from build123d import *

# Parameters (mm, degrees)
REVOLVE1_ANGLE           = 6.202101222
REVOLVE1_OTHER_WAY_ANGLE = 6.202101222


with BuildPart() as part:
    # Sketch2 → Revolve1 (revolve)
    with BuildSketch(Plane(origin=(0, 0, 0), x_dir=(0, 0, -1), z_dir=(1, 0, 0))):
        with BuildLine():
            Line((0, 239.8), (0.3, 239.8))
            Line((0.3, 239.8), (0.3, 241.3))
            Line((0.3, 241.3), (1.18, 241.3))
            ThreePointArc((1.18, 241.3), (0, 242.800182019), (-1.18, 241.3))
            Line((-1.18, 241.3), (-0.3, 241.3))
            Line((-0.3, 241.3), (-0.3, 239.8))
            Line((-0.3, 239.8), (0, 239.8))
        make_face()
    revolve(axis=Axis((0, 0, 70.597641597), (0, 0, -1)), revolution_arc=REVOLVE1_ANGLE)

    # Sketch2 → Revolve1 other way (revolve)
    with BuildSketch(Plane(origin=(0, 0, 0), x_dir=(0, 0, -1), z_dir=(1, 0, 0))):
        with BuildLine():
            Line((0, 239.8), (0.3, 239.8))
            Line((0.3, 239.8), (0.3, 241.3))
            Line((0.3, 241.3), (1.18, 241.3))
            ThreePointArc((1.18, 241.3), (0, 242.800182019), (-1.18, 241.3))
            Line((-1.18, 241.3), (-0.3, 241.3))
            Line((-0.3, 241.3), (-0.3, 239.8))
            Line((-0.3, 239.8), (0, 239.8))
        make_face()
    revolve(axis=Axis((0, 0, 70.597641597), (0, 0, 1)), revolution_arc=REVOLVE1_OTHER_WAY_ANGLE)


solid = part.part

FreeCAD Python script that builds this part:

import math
import FreeCAD as App
import Part
import Sketcher
Q = App.Units.Quantity

doc = App.newDocument("Part")
body = doc.addObject("PartDesign::Body", "Body")

sketch1 = body.newObject("Sketcher::SketchObject", "Sketch")
sketch1.AttachmentSupport = (doc.getObject("YZ_Plane"), [""])
sketch1.MapMode = "FlatFace"
sketch1.addGeometry(Part.LineSegment(App.Vector(239.8, -0.3, 0), App.Vector(241.3, -0.3, 0)), False)
sketch1.addGeometry(Part.LineSegment(App.Vector(241.3, -0.3, 0), App.Vector(241.3, -1.2, 0)), False)
sketch1.addGeometry(Part.ArcOfCircle(Part.Circle(App.Vector(241.6, 0, 0), App.Vector(0, 0, 1), 1.2), math.radians(-104), math.radians(104)), False)
sketch1.addGeometry(Part.LineSegment(App.Vector(241.3, 1.2, 0), App.Vector(241.3, 0.3, 0)), False)
sketch1.addGeometry(Part.LineSegment(App.Vector(241.3, 0.3, 0), App.Vector(239.8, 0.3, 0)), False)
sketch1.addGeometry(Part.LineSegment(App.Vector(239.8, 0.3, 0), App.Vector(239.8, -0.3, 0)), False)
sketch1.addConstraint(Sketcher.Constraint("Coincident", 0, 2, 1, 1))
sketch1.addConstraint(Sketcher.Constraint("Coincident", 1, 2, 2, 1))
sketch1.addConstraint(Sketcher.Constraint("Coincident", 2, 2, 3, 1))
sketch1.addConstraint(Sketcher.Constraint("Coincident", 3, 2, 4, 1))
sketch1.addConstraint(Sketcher.Constraint("Coincident", 4, 2, 5, 1))
sketch1.addConstraint(Sketcher.Constraint("Coincident", 5, 2, 0, 1))
sketch1.addConstraint(Sketcher.Constraint("Horizontal", 0))
sketch1.addConstraint(Sketcher.Constraint("Vertical", 1))
sketch1.addConstraint(Sketcher.Constraint("Vertical", 3))
sketch1.addConstraint(Sketcher.Constraint("Horizontal", 4))
sketch1.addConstraint(Sketcher.Constraint("Vertical", 5))
sketch1.addConstraint(Sketcher.Constraint("Symmetric", 1, 2, 2, 2, -1))
sketch1.addConstraint(Sketcher.Constraint("Equal", 1, 3))
sketch1.addConstraint(Sketcher.Constraint("DistanceX", 0, 1, 0, 2, Q("1.5 mm")))
sketch1.addConstraint(Sketcher.Constraint("DistanceY", 5, 2, 5, 1, Q("0.6 mm")))
sketch1.addConstraint(Sketcher.Constraint("DistanceY", 1, 2, 1, 1, Q("0.88 mm")))
sketch1.addConstraint(Sketcher.Constraint("DistanceX", -1, 1, 0, 2, Q("241.3 mm")))
sketch1.addConstraint(Sketcher.Constraint("Radius", 2, Q("1.214168 mm")))
revolution = body.newObject("PartDesign::Revolution", "Revolution")
revolution.Profile = sketch1
revolution.ReferenceAxis = (sketch1, ["V_Axis"])
revolution.Angle = 6.202101
revolution.Reversed = True

sketch2 = body.newObject("Sketcher::SketchObject", "Sketch001")
sketch2.AttachmentSupport = (doc.getObject("YZ_Plane"), [""])
sketch2.MapMode = "FlatFace"
sketch2.addGeometry(Part.LineSegment(App.Vector(239.8, -0.3, 0), App.Vector(241.3, -0.3, 0)), False)
sketch2.addGeometry(Part.LineSegment(App.Vector(241.3, -0.3, 0), App.Vector(241.3, -1.2, 0)), False)
sketch2.addGeometry(Part.ArcOfCircle(Part.Circle(App.Vector(241.6, 0, 0), App.Vector(0, 0, 1), 1.2), math.radians(-104), math.radians(104)), False)
sketch2.addGeometry(Part.LineSegment(App.Vector(241.3, 1.2, 0), App.Vector(241.3, 0.3, 0)), False)
sketch2.addGeometry(Part.LineSegment(App.Vector(241.3, 0.3, 0), App.Vector(239.8, 0.3, 0)), False)
sketch2.addGeometry(Part.LineSegment(App.Vector(239.8, 0.3, 0), App.Vector(239.8, -0.3, 0)), False)
sketch2.addConstraint(Sketcher.Constraint("Coincident", 0, 2, 1, 1))
sketch2.addConstraint(Sketcher.Constraint("Coincident", 1, 2, 2, 1))
sketch2.addConstraint(Sketcher.Constraint("Coincident", 2, 2, 3, 1))
sketch2.addConstraint(Sketcher.Constraint("Coincident", 3, 2, 4, 1))
sketch2.addConstraint(Sketcher.Constraint("Coincident", 4, 2, 5, 1))
sketch2.addConstraint(Sketcher.Constraint("Coincident", 5, 2, 0, 1))
sketch2.addConstraint(Sketcher.Constraint("Horizontal", 0))
sketch2.addConstraint(Sketcher.Constraint("Vertical", 1))
sketch2.addConstraint(Sketcher.Constraint("Vertical", 3))
sketch2.addConstraint(Sketcher.Constraint("Horizontal", 4))
sketch2.addConstraint(Sketcher.Constraint("Vertical", 5))
sketch2.addConstraint(Sketcher.Constraint("Symmetric", 1, 2, 2, 2, -1))
sketch2.addConstraint(Sketcher.Constraint("Equal", 1, 3))
sketch2.addConstraint(Sketcher.Constraint("DistanceX", 0, 1, 0, 2, Q("1.5 mm")))
sketch2.addConstraint(Sketcher.Constraint("DistanceY", 5, 2, 5, 1, Q("0.6 mm")))
sketch2.addConstraint(Sketcher.Constraint("DistanceY", 1, 2, 1, 1, Q("0.88 mm")))
sketch2.addConstraint(Sketcher.Constraint("DistanceX", -1, 1, 0, 2, Q("241.3 mm")))
sketch2.addConstraint(Sketcher.Constraint("Radius", 2, Q("1.214168 mm")))
revolution2 = body.newObject("PartDesign::Revolution", "Revolution001")
revolution2.Profile = sketch2
revolution2.ReferenceAxis = (sketch2, ["V_Axis"])
revolution2.Angle = 6.202101

doc.recompute()
